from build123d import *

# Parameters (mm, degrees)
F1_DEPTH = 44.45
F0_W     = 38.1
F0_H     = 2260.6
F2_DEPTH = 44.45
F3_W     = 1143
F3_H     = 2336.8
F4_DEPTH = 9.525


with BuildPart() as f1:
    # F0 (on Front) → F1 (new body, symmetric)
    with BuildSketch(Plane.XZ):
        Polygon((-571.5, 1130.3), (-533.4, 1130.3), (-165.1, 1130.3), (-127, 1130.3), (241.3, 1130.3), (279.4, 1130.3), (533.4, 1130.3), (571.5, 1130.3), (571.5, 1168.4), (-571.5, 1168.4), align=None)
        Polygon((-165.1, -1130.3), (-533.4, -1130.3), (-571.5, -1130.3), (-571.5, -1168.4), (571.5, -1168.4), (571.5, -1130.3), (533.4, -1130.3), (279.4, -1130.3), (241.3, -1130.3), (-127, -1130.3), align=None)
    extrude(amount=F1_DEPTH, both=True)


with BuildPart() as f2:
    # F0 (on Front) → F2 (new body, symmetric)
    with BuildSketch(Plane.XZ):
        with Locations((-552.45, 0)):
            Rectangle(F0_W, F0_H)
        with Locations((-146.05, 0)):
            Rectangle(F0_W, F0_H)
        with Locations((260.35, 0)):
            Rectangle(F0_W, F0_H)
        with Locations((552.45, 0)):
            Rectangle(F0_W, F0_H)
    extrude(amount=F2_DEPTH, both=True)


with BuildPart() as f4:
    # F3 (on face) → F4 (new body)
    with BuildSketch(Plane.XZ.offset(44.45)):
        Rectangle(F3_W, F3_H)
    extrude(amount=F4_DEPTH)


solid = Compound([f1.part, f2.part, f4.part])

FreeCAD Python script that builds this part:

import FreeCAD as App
import Part
import Sketcher
from FreeCAD import Vector
Q = App.Units.Quantity


def add_polygon(sketch, points):
    """Adds a closed chain of lines whose ends are joined by coincident constraints."""
    first, n = sketch.GeometryCount, len(points)
    for a, b in zip(points, points[1:] + points[:1]):
        sketch.addGeometry(Part.LineSegment(App.Vector(*a, 0), App.Vector(*b, 0)), False)
    for i in range(n):
        sketch.addConstraint(Sketcher.Constraint("Coincident", first + i, 2, first + (i + 1) % n, 1))

doc = App.newDocument("Part")
params = doc.addObject("Spreadsheet::Sheet", "Params")
for row, (alias, value) in enumerate([
    ("sketch1_width", "45 in"),
    ("sketch1_height", "1.5 in"),
    ("pad1_length", "3.5 in"),
    ("sketch2_height", "89 in"),
    ("sketch2_width", "1.5 in"),
    ("pad2_length", "3.5 in"),
    ("sketch3_width", "45 in"),
    ("sketch3_height", "92 in"),
    ("pad3_length", "0.375 in"),
], start=1):
    params.set(f"A{row}", alias)
    params.set(f"B{row}", "=" + value)
    params.setAlias(f"B{row}", alias)

body = doc.addObject("PartDesign::Body", "Body")
body.AllowCompound = True

# Sketch on XZ plane
sketch1 = body.newObject("Sketcher::SketchObject", "Sketch")
sketch1.AttachmentSupport = (doc.getObject("XZ_Plane"), [""])
sketch1.MapMode = "FlatFace"
add_polygon(sketch1, [(-572, 1130), (572, 1130), (572, 1168), (-572, 1168)])  # lines 0-3
add_polygon(sketch1, [(-572, -1130), (-572, -1168), (572, -1168), (572, -1130)])  # lines 4-7
sketch1.addConstraint(Sketcher.Constraint("Horizontal", 0))
sketch1.addConstraint(Sketcher.Constraint("Vertical", 1))
sketch1.addConstraint(Sketcher.Constraint("Horizontal", 2))
sketch1.addConstraint(Sketcher.Constraint("Vertical", 3))
sketch1.addConstraint(Sketcher.Constraint("Vertical", 4))
sketch1.addConstraint(Sketcher.Constraint("Horizontal", 5))
sketch1.addConstraint(Sketcher.Constraint("Vertical", 6))
sketch1.addConstraint(Sketcher.Constraint("Horizontal", 7))
sketch1.addConstraint(Sketcher.Constraint("Symmetric", 1, 2, 4, 2, -1, 1))
sketch1.addConstraint(Sketcher.Constraint("Symmetric", 3, 2, 6, 2, -1, 1))
sketch1.addConstraint(Sketcher.Constraint("Vertical", 3, 2, 4, 2))
sketch1.addConstraint(Sketcher.Constraint("DistanceX", 0, 1, 0, 2, Q("45 in")))
sketch1.addConstraint(Sketcher.Constraint("DistanceY", 1, 1, 1, 2, Q("1.5 in")))
sketch1.addConstraint(Sketcher.Constraint("DistanceY", -1, 1, 1, 2, Q("46 in")))
sketch1.setExpression("Constraints[19]", "Params.sketch1_width")
sketch1.setExpression("Constraints[20]", "Params.sketch1_height")
pad1 = body.newObject("PartDesign::Pad", "Pad")
pad1.Profile = sketch1
pad1.setExpression("Length", "Params.pad1_length")
pad1.Midplane = True
body2 = doc.addObject("PartDesign::Body", "Body001")
body2.AllowCompound = True

# Sketch on XZ plane
sketch2 = body2.newObject("Sketcher::SketchObject", "Sketch001")
sketch2.AttachmentSupport = (doc.getObject("XZ_Plane001"), [""])
sketch2.MapMode = "FlatFace"
add_polygon(sketch2, [(-572, 1130), (-572, -1130), (-533, -1130), (-533, 1130)])  # lines 0-3
add_polygon(sketch2, [(-165, 1130), (-165, -1130), (-127, -1130), (-127, 1130)])  # lines 4-7
add_polygon(sketch2, [(241, 1130), (241, -1130), (279, -1130), (279, 1130)])  # lines 8-11
add_polygon(sketch2, [(533, 1130), (533, -1130), (572, -1130), (572, 1130)])  # lines 12-15
sketch2.addConstraint(Sketcher.Constraint("Vertical", 0))
sketch2.addConstraint(Sketcher.Constraint("Horizontal", 1))
sketch2.addConstraint(Sketcher.Constraint("Vertical", 2))
sketch2.addConstraint(Sketcher.Constraint("Horizontal", 3))
sketch2.addConstraint(Sketcher.Constraint("Vertical", 4))
sketch2.addConstraint(Sketcher.Constraint("Horizontal", 5))
sketch2.addConstraint(Sketcher.Constraint("Vertical", 6))
sketch2.addConstraint(Sketcher.Constraint("Horizontal", 7))
sketch2.addConstraint(Sketcher.Constraint("Vertical", 8))
sketch2.addConstraint(Sketcher.Constraint("Horizontal", 9))
sketch2.addConstraint(Sketcher.Constraint("Vertical", 10))
sketch2.addConstraint(Sketcher.Constraint("Horizontal", 11))
sketch2.addConstraint(Sketcher.Constraint("Vertical", 12))
sketch2.addConstraint(Sketcher.Constraint("Horizontal", 13))
sketch2.addConstraint(Sketcher.Constraint("Vertical", 14))
sketch2.addConstraint(Sketcher.Constraint("Horizontal", 15))
sketch2.addConstraint(Sketcher.Constraint("Symmetric", 2, 2, 12, 2, -1, 1))
sketch2.addConstraint(Sketcher.Constraint("Symmetric", 0, 2, 14, 2, -1, 1))
sketch2.addConstraint(Sketcher.Constraint("Horizontal", 1, 2, 4, 2))
sketch2.addConstraint(Sketcher.Constraint("Horizontal", 3, 2, 6, 2))
sketch2.addConstraint(Sketcher.Constraint("Horizontal", 5, 2, 8, 2))
sketch2.addConstraint(Sketcher.Constraint("Horizontal", 7, 2, 10, 2))
sketch2.addConstraint(Sketcher.Constraint("Horizontal", 9, 2, 12, 2))
sketch2.addConstraint(Sketcher.Constraint("Equal", 3, 5))
sketch2.addConstraint(Sketcher.Constraint("Equal", 7, 9))
sketch2.addConstraint(Sketcher.Constraint("DistanceY", 0, 2, 0, 1, Q("89 in")))
sketch2.addConstraint(Sketcher.Constraint("DistanceX", 1, 1, 1, 2, Q("1.5 in")))
sketch2.addConstraint(Sketcher.Constraint("DistanceX", 1, 2, -1, 1, Q("21 in")))
sketch2.addConstraint(Sketcher.Constraint("DistanceX", 5, 2, -1, 1, Q("5 in")))
sketch2.addConstraint(Sketcher.Constraint("DistanceX", -1, 1, 9, 2, Q("11 in")))
sketch2.setExpression("Constraints[41]", "Params.sketch2_height")
sketch2.setExpression("Constraints[42]", "Params.sketch2_width")
pad2 = body2.newObject("PartDesign::Pad", "Pad001")
pad2.Profile = sketch2
pad2.setExpression("Length", "Params.pad2_length")
pad2.Midplane = True
body3 = doc.addObject("PartDesign::Body", "Body002")

# Sketch on XZ plane
sketch3 = body3.newObject("Sketcher::SketchObject", "Sketch002")
sketch3.AttachmentSupport = (doc.getObject("XZ_Plane002"), [""])
sketch3.MapMode = "FlatFace"
sketch3.AttachmentOffset = App.Placement(Vector(0, 0, 1.75 * 25.4), App.Rotation())
add_polygon(sketch3, [(-572, 1168), (-572, -1168), (572, -1168), (572, 1168)])  # lines 0-3
sketch3.addConstraint(Sketcher.Constraint("Vertical", 0))
sketch3.addConstraint(Sketcher.Constraint("Horizontal", 1))
sketch3.addConstraint(Sketcher.Constraint("Vertical", 2))
sketch3.addConstraint(Sketcher.Constraint("Horizontal", 3))
sketch3.addConstraint(Sketcher.Constraint("Symmetric", 0, 2, 2, 2, -1, 1))
sketch3.addConstraint(Sketcher.Constraint("DistanceX", 1, 1, 1, 2, Q("45 in")))
sketch3.addConstraint(Sketcher.Constraint("DistanceY", 0, 2, 0, 1, Q("92 in")))
sketch3.setExpression("Constraints[9]", "Params.sketch3_width")
sketch3.setExpression("Constraints[10]", "Params.sketch3_height")
pad3 = body3.newObject("PartDesign::Pad", "Pad002")
pad3.Profile = sketch3
pad3.setExpression("Length", "Params.pad3_length")

doc.recompute()
